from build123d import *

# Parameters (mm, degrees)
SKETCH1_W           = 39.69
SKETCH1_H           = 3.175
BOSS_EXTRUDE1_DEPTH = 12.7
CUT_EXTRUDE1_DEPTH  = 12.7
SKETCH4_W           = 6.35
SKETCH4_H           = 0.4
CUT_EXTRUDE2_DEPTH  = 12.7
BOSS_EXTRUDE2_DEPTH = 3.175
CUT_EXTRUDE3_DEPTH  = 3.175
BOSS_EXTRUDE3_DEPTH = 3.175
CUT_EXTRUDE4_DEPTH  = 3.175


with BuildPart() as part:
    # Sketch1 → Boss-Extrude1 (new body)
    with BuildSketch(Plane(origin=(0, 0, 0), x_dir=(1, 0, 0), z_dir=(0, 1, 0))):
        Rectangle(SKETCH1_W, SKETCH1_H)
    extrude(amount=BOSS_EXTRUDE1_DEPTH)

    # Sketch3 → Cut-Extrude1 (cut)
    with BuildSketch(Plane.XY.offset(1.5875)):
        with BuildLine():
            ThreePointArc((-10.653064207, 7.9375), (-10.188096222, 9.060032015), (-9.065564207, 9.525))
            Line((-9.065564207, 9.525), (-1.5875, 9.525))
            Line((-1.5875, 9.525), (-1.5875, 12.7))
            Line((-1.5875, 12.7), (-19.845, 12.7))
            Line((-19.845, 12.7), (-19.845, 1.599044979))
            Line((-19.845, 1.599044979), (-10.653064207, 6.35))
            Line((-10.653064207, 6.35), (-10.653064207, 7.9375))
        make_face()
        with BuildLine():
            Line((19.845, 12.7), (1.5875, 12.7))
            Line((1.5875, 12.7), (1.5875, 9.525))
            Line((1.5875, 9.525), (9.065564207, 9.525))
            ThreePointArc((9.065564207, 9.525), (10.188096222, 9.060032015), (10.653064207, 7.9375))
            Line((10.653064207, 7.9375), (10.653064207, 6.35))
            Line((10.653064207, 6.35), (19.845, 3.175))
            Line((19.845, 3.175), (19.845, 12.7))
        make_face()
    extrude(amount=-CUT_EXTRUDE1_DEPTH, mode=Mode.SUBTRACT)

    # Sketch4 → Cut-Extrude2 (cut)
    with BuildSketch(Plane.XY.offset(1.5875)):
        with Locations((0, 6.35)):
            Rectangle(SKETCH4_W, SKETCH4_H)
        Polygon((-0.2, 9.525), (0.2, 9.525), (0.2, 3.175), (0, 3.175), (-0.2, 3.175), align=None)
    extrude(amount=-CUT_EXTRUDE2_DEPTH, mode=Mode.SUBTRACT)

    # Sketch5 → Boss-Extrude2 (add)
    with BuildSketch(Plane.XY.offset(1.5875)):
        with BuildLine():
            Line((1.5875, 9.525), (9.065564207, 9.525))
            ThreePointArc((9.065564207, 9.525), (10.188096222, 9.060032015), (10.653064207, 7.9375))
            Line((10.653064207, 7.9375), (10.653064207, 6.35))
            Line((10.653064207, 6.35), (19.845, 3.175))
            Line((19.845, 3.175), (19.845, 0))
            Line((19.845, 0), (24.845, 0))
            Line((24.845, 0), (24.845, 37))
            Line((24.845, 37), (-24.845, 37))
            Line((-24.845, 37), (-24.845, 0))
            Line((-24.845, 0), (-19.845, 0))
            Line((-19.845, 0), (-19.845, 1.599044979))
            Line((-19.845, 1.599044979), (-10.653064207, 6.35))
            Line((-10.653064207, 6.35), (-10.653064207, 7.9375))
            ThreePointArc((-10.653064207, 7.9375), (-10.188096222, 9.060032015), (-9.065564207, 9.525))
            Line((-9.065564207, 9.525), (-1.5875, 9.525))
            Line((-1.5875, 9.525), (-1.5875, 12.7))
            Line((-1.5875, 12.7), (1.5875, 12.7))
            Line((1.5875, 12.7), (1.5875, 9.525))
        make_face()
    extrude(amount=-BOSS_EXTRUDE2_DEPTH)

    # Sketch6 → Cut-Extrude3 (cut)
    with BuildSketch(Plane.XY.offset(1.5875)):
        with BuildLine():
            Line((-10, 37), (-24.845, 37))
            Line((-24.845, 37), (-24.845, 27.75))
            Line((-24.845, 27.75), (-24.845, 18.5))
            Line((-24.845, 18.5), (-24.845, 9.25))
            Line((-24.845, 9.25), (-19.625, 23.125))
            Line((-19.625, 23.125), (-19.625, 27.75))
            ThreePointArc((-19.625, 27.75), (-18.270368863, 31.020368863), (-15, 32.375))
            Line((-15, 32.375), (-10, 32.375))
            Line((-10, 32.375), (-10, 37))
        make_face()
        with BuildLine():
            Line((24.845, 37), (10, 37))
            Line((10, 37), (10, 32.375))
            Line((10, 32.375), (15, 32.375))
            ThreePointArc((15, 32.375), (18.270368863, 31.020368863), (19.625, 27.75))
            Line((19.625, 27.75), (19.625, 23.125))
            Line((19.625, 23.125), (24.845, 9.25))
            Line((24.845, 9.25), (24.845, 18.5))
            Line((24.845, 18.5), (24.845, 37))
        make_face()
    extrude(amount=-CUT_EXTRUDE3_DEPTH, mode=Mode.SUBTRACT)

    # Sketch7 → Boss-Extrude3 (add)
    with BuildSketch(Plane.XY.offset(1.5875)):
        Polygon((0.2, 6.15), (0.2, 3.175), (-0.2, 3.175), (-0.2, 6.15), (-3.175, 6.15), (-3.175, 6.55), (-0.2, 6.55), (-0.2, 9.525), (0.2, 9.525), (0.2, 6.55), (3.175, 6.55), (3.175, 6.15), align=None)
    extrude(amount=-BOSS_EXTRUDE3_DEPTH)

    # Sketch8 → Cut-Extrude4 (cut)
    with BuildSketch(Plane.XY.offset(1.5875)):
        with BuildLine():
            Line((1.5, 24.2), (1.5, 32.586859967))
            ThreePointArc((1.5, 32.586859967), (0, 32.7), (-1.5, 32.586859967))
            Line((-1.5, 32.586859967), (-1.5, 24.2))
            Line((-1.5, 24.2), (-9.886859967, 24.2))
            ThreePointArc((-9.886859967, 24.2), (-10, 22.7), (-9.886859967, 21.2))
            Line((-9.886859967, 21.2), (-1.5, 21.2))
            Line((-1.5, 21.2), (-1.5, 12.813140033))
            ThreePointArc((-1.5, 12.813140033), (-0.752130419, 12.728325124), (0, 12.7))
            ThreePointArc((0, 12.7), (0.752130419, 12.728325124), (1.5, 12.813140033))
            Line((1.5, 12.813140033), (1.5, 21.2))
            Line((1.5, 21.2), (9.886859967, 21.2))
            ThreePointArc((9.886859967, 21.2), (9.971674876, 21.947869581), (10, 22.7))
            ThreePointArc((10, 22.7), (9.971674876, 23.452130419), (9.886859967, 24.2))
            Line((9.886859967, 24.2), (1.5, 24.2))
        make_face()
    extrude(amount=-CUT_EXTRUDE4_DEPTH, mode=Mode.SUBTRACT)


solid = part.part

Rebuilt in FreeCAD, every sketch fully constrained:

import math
import FreeCAD as App
import Part
import Sketcher
from FreeCAD import Vector


def add_polygon(sketch, points):
    """Adds a closed chain of lines whose ends are joined by coincident constraints."""
    first, n = sketch.GeometryCount, len(points)
    for a, b in zip(points, points[1:] + points[:1]):
        sketch.addGeometry(Part.LineSegment(App.Vector(*a, 0), App.Vector(*b, 0)), False)
    for i in range(n):
        sketch.addConstraint(Sketcher.Constraint("Coincident", first + i, 2, first + (i + 1) % n, 1))

doc = App.newDocument("Part")
body = doc.addObject("PartDesign::Body", "Body")

# Sketch on XZ plane
sketch1 = body.newObject("Sketcher::SketchObject", "Sketch")
sketch1.AttachmentSupport = (doc.getObject("XZ_Plane"), [""])
sketch1.MapMode = "FlatFace"
add_polygon(sketch1, [(-19.8, -1.6), (-19.8, 1.6), (19.8, 1.6), (19.8, -1.6)])  # lines 0-3
sketch1.addConstraint([
    Sketcher.Constraint("Vertical", 0),
    Sketcher.Constraint("Horizontal", 1),
    Sketcher.Constraint("Vertical", 2),
    Sketcher.Constraint("Horizontal", 3),
    Sketcher.Constraint("Symmetric", 0, 2, 2, 2, -1, 1),
    Sketcher.Constraint("DistanceX", 1, 1, 1, 2, 39.69),
    Sketcher.Constraint("DistanceY", 0, 1, 0, 2, 3.175),
])
pad1 = body.newObject("PartDesign::Pad", "Pad")
pad1.Profile = sketch1
pad1.Length = 12.7
pad1.Reversed = True

# Sketch on XY plane
sketch2 = body.newObject("Sketcher::SketchObject", "Sketch001")
sketch2.AttachmentSupport = (doc.getObject("XY_Plane"), [""])
sketch2.MapMode = "FlatFace"
sketch2.AttachmentOffset = App.Placement(Vector(0, 0, 1.5875), App.Rotation())
sketch2.addGeometry([
    Part.ArcOfCircle(Part.Circle(Vector(-9.1, 7.9, 0), Vector(0, 0, 1), 1.6), math.radians(90), math.radians(180)),  # 0
    Part.LineSegment(Vector(-9.1, 9.5, 0), Vector(-1.6, 9.5, 0)),  # 1
    Part.LineSegment(Vector(-1.6, 9.5, 0), Vector(-1.6, 12.7, 0)),  # 2
    Part.LineSegment(Vector(-1.6, 12.7, 0), Vector(-19.8, 12.7, 0)),  # 3
    Part.LineSegment(Vector(-19.8, 12.7, 0), Vector(-19.8, 1.6, 0)),  # 4
    Part.LineSegment(Vector(-19.8, 1.6, 0), Vector(-10.7, 6.3, 0)),  # 5
    Part.LineSegment(Vector(-10.7, 6.3, 0), Vector(-10.7, 7.9, 0)),  # 6
    Part.LineSegment(Vector(19.8, 12.7, 0), Vector(1.6, 12.7, 0)),  # 7
    Part.LineSegment(Vector(1.6, 12.7, 0), Vector(1.6, 9.5, 0)),  # 8
    Part.LineSegment(Vector(1.6, 9.5, 0), Vector(9.1, 9.5, 0)),  # 9
    Part.ArcOfCircle(Part.Circle(Vector(9.1, 7.9, 0), Vector(0, 0, 1), 1.6), math.radians(0), math.radians(90)),  # 10
    Part.LineSegment(Vector(10.7, 7.9, 0), Vector(10.7, 6.3, 0)),  # 11
    Part.LineSegment(Vector(10.7, 6.3, 0), Vector(19.8, 3.2, 0)),  # 12
    Part.LineSegment(Vector(19.8, 3.2, 0), Vector(19.8, 12.7, 0)),  # 13
], False)
sketch2.addConstraint([
    Sketcher.Constraint("Tangent", 0, 1, 1, 1),
    Sketcher.Constraint("Coincident", 1, 2, 2, 1),
    Sketcher.Constraint("Coincident", 2, 2, 3, 1),
    Sketcher.Constraint("Coincident", 3, 2, 4, 1),
    Sketcher.Constraint("Coincident", 4, 2, 5, 1),
    Sketcher.Constraint("Coincident", 5, 2, 6, 1),
    Sketcher.Constraint("Tangent", 6, 2, 0, 2),
    Sketcher.Constraint("Coincident", 7, 2, 8, 1),
    Sketcher.Constraint("Coincident", 8, 2, 9, 1),
    Sketcher.Constraint("Tangent", 9, 2, 10, 2),
    Sketcher.Constraint("Tangent", 10, 1, 11, 1),
    Sketcher.Constraint("Coincident", 11, 2, 12, 1),
    Sketcher.Constraint("Coincident", 12, 2, 13, 1),
    Sketcher.Constraint("Coincident", 13, 2, 7, 1),
    Sketcher.Constraint("Horizontal", 1),
    Sketcher.Constraint("Vertical", 2),
    Sketcher.Constraint("Horizontal", 3),
    Sketcher.Constraint("Vertical", 4),
    Sketcher.Constraint("Vertical", 6),
    Sketcher.Constraint("Horizontal", 7),
    Sketcher.Constraint("Vertical", 8),
    Sketcher.Constraint("Horizontal", 9),
    Sketcher.Constraint("Vertical", 11),
    Sketcher.Constraint("Vertical", 13),
    Sketcher.Constraint("Equal", 0, 10),
    Sketcher.Constraint("Symmetric", 0, 3, 10, 3, -2),
    Sketcher.Constraint("Symmetric", 2, 2, 7, 2, -2),
    Sketcher.Constraint("Horizontal", 5, 2, 11, 2),
    Sketcher.Constraint("Equal", 3, 7),
    Sketcher.Constraint("DistanceY", -1, 1, 2, 2, 12.7),
    Sketcher.Constraint("Radius", 0, 1.5875),
    Sketcher.Constraint("DistanceY", 2, 1, 2, 2, 3.175),
    Sketcher.Constraint("DistanceY", 13, 1, 13, 2, 9.525),
    Sketcher.Constraint("DistanceY", -1, 1, 5, 2, 6.35),
    Sketcher.Constraint("DistanceX", 3, 2, 3, 1, 18.2575),
    Sketcher.Constraint("DistanceX", 3, 2, -1, 1, 19.845),
    Sketcher.Constraint("Distance", 12, 9.724829),
    Sketcher.Constraint("DistanceY", 4, 2, 4, 1, 11.100955),
])
pocket1 = body.newObject("PartDesign::Pocket", "Pocket")
pocket1.Profile = sketch2
pocket1.Length = 12.7

# Sketch on XY plane
sketch3 = body.newObject("Sketcher::SketchObject", "Sketch002")
sketch3.AttachmentSupport = (doc.getObject("XY_Plane"), [""])
sketch3.MapMode = "FlatFace"
sketch3.AttachmentOffset = App.Placement(Vector(0, 0, 1.5875), App.Rotation())
add_polygon(sketch3, [(-3.17, 6.55), (-3.17, 6.15), (-0.2, 6.15), (-0.2, 3.17), (0.2, 3.17), (0.2, 6.15), (3.17, 6.15), (3.17, 6.55), (0.2, 6.55), (0.2, 9.53), (-0.2, 9.53), (-0.2, 6.55)])  # lines 0-11
sketch3.addConstraint([
    Sketcher.Constraint("Vertical", 0),
    Sketcher.Constraint("Horizontal", 1),
    Sketcher.Constraint("Vertical", 2),
    Sketcher.Constraint("Horizontal", 3),
    Sketcher.Constraint("Vertical", 4),
    Sketcher.Constraint("Horizontal", 5),
    Sketcher.Constraint("Vertical", 6),
    Sketcher.Constraint("Horizontal", 7),
    Sketcher.Constraint("Vertical", 8),
    Sketcher.Constraint("Horizontal", 9),
    Sketcher.Constraint("Vertical", 10),
    Sketcher.Constraint("Horizontal", 11),
    Sketcher.Constraint("Symmetric", 1, 2, 4, 2, -2),
    Sketcher.Constraint("Symmetric", 7, 2, 10, 2, -2),
    Sketcher.Constraint("Vertical", 4, 2, 7, 2),
    Sketcher.Constraint("Equal", 1, 5),
    Sketcher.Constraint("Equal", 9, 0),
    Sketcher.Constraint("Equal", 11, 2),
    Sketcher.Constraint("Equal", 4, 8),
    Sketcher.Constraint("DistanceX", 3, 1, 3, 2, 0.4),
    Sketcher.Constraint("DistanceX", 1, 1, 1, 2, 2.975),
    Sketcher.Constraint("DistanceY", -1, 1, 0, 2, 6.15),
])
pocket2 = body.newObject("PartDesign::Pocket", "Pocket001")
pocket2.Profile = sketch3
pocket2.Length = 12.7

# Sketch on XY plane
sketch4 = body.newObject("Sketcher::SketchObject", "Sketch003")
sketch4.AttachmentSupport = (doc.getObject("XY_Plane"), [""])
sketch4.MapMode = "FlatFace"
sketch4.AttachmentOffset = App.Placement(Vector(0, 0, 1.5875), App.Rotation())
sketch4.addGeometry([
    Part.LineSegment(Vector(1.6, 9.5, 0), Vector(9.1, 9.5, 0)),  # 0
    Part.ArcOfCircle(Part.Circle(Vector(9.1, 7.9, 0), Vector(0, 0, 1), 1.6), math.radians(0), math.radians(90)),  # 1
    Part.LineSegment(Vector(10.7, 7.9, 0), Vector(10.7, 6.3, 0)),  # 2
    Part.LineSegment(Vector(10.7, 6.3, 0), Vector(19.8, 3.2, 0)),  # 3
    Part.LineSegment(Vector(19.8, 3.2, 0), Vector(19.8, 0, 0)),  # 4
    Part.LineSegment(Vector(19.8, 0, 0), Vector(24.8, 0, 0)),  # 5
    Part.LineSegment(Vector(24.8, 0, 0), Vector(24.8, 37, 0)),  # 6
    Part.LineSegment(Vector(24.8, 37, 0), Vector(-24.8, 37, 0)),  # 7
    Part.LineSegment(Vector(-24.8, 37, 0), Vector(-24.8, 0, 0)),  # 8
    Part.LineSegment(Vector(-24.8, 0, 0), Vector(-19.8, 0, 0)),  # 9
    Part.LineSegment(Vector(-19.8, 0, 0), Vector(-19.8, 1.6, 0)),  # 10
    Part.LineSegment(Vector(-19.8, 1.6, 0), Vector(-10.7, 6.3, 0)),  # 11
    Part.LineSegment(Vector(-10.7, 6.3, 0), Vector(-10.7, 7.9, 0)),  # 12
    Part.ArcOfCircle(Part.Circle(Vector(-9.1, 7.9, 0), Vector(0, 0, 1), 1.6), math.radians(90), math.radians(180)),  # 13
    Part.LineSegment(Vector(-9.1, 9.5, 0), Vector(-1.6, 9.5, 0)),  # 14
    Part.LineSegment(Vector(-1.6, 9.5, 0), Vector(-1.6, 12.7, 0)),  # 15
    Part.LineSegment(Vector(-1.6, 12.7, 0), Vector(1.6, 12.7, 0)),  # 16
    Part.LineSegment(Vector(1.6, 12.7, 0), Vector(1.6, 9.5, 0)),  # 17
], False)
sketch4.addConstraint([
    Sketcher.Constraint("Tangent", 0, 2, 1, 2),
    Sketcher.Constraint("Tangent", 1, 1, 2, 1),
    Sketcher.Constraint("Coincident", 2, 2, 3, 1),
    Sketcher.Constraint("Coincident", 3, 2, 4, 1),
    Sketcher.Constraint("Coincident", 4, 2, 5, 1),
    Sketcher.Constraint("Coincident", 5, 2, 6, 1),
    Sketcher.Constraint("Coincident", 6, 2, 7, 1),
    Sketcher.Constraint("Coincident", 7, 2, 8, 1),
    Sketcher.Constraint("Coincident", 8, 2, 9, 1),
    Sketcher.Constraint("Coincident", 9, 2, 10, 1),
    Sketcher.Constraint("Coincident", 10, 2, 11, 1),
    Sketcher.Constraint("Coincident", 11, 2, 12, 1),
    Sketcher.Constraint("Tangent", 12, 2, 13, 2),
    Sketcher.Constraint("Tangent", 13, 1, 14, 1),
    Sketcher.Constraint("Coincident", 14, 2, 15, 1),
    Sketcher.Constraint("Coincident", 15, 2, 16, 1),
    Sketcher.Constraint("Coincident", 16, 2, 17, 1),
    Sketcher.Constraint("Coincident", 17, 2, 0, 1),
    Sketcher.Constraint("Horizontal", 0),
    Sketcher.Constraint("Vertical", 2),
    Sketcher.Constraint("Vertical", 4),
    Sketcher.Constraint("Horizontal", 5),
    Sketcher.Constraint("Vertical", 6),
    Sketcher.Constraint("Horizontal", 7),
    Sketcher.Constraint("Vertical", 8),
    Sketcher.Constraint("Horizontal", 9),
    Sketcher.Constraint("Vertical", 10),
    Sketcher.Constraint("Vertical", 12),
    Sketcher.Constraint("Horizontal", 14),
    Sketcher.Constraint("Vertical", 15),
    Sketcher.Constraint("Horizontal", 16),
    Sketcher.Constraint("Vertical", 17),
    Sketcher.Constraint("Equal", 1, 13),
    Sketcher.Constraint("Symmetric", 5, 2, 8, 2, -1, 1),
    Sketcher.Constraint("Symmetric", 1, 3, 13, 3, -2),
    Sketcher.Constraint("Symmetric", 4, 2, 9, 2, -2),
    Sketcher.Constraint("Horizontal", 2, 2, 11, 2),
    Sketcher.Constraint("Equal", 0, 14),
    Sketcher.Constraint("Equal", 16, 4),
    Sketcher.Constraint("Equal", 4, 15),
    Sketcher.Constraint("DistanceX", 5, 1, 5, 2, 5.0),
    Sketcher.Constraint("DistanceY", 6, 1, 6, 2, 37.0),
    Sketcher.Constraint("DistanceX", 7, 2, 7, 1, 49.69),
    Sketcher.Constraint("DistanceY", -1, 1, 15, 2, 12.7),
    Sketcher.Constraint("Radius", 1, 1.5875),
    Sketcher.Constraint("DistanceX", 16, 1, 16, 2, 3.175),
    Sketcher.Constraint("DistanceY", -1, 1, 2, 2, 6.35),
    Sketcher.Constraint("Distance", 3, 9.724829),
    Sketcher.Constraint("DistanceY", 10, 1, 10, 2, 1.599045),
])
pad2 = body.newObject("PartDesign::Pad", "Pad001")
pad2.Profile = sketch4
pad2.Length = 3.175
pad2.Reversed = True

# Sketch on XY plane
sketch5 = body.newObject("Sketcher::SketchObject", "Sketch004")
sketch5.AttachmentSupport = (doc.getObject("XY_Plane"), [""])
sketch5.MapMode = "FlatFace"
sketch5.AttachmentOffset = App.Placement(Vector(0, 0, 1.5875), App.Rotation())
sketch5.addGeometry([
    Part.LineSegment(Vector(-10, 37, 0), Vector(-24.8, 37, 0)),  # 0
    Part.LineSegment(Vector(-24.8, 37, 0), Vector(-24.8, 9.2, 0)),  # 1
    Part.LineSegment(Vector(-24.8, 9.2, 0), Vector(-19.6, 23.1, 0)),  # 2
    Part.LineSegment(Vector(-19.6, 23.1, 0), Vector(-19.6, 27.8, 0)),  # 3
    Part.ArcOfCircle(Part.Circle(Vector(-15, 27.8, 0), Vector(0, 0, 1), 4.6), math.radians(90), math.radians(180)),  # 4
    Part.LineSegment(Vector(-15, 32.4, 0), Vector(-10, 32.4, 0)),  # 5
    Part.LineSegment(Vector(-10, 32.4, 0), Vector(-10, 37, 0)),  # 6
    Part.LineSegment(Vector(24.8, 37, 0), Vector(10, 37, 0)),  # 7
    Part.LineSegment(Vector(10, 37, 0), Vector(10, 32.4, 0)),  # 8
    Part.LineSegment(Vector(10, 32.4, 0), Vector(15, 32.4, 0)),  # 9
    Part.ArcOfCircle(Part.Circle(Vector(15, 27.8, 0), Vector(0, 0, 1), 4.6), math.radians(0), math.radians(90)),  # 10
    Part.LineSegment(Vector(19.6, 27.8, 0), Vector(19.6, 23.1, 0)),  # 11
    Part.LineSegment(Vector(19.6, 23.1, 0), Vector(24.8, 9.2, 0)),  # 12
    Part.LineSegment(Vector(24.8, 9.2, 0), Vector(24.8, 37, 0)),  # 13
], False)
sketch5.addConstraint([
    Sketcher.Constraint("Coincident", 0, 2, 1, 1),
    Sketcher.Constraint("Coincident", 1, 2, 2, 1),
    Sketcher.Constraint("Coincident", 2, 2, 3, 1),
    Sketcher.Constraint("Tangent", 3, 2, 4, 2),
    Sketcher.Constraint("Tangent", 4, 1, 5, 1),
    Sketcher.Constraint("Coincident", 5, 2, 6, 1),
    Sketcher.Constraint("Coincident", 6, 2, 0, 1),
    Sketcher.Constraint("Coincident", 7, 2, 8, 1),
    Sketcher.Constraint("Coincident", 8, 2, 9, 1),
    Sketcher.Constraint("Tangent", 9, 2, 10, 2),
    Sketcher.Constraint("Tangent", 10, 1, 11, 1),
    Sketcher.Constraint("Coincident", 11, 2, 12, 1),
    Sketcher.Constraint("Coincident", 12, 2, 13, 1),
    Sketcher.Constraint("Coincident", 13, 2, 7, 1),
    Sketcher.Constraint("Horizontal", 0),
    Sketcher.Constraint("Vertical", 1),
    Sketcher.Constraint("Vertical", 3),
    Sketcher.Constraint("Horizontal", 5),
    Sketcher.Constraint("Vertical", 6),
    Sketcher.Constraint("Horizontal", 7),
    Sketcher.Constraint("Vertical", 8),
    Sketcher.Constraint("Horizontal", 9),
    Sketcher.Constraint("Vertical", 11),
    Sketcher.Constraint("Vertical", 13),
    Sketcher.Constraint("Equal", 4, 10),
    Sketcher.Constraint("Symmetric", 4, 3, 10, 3, -2),
    Sketcher.Constraint("Symmetric", 6, 2, 7, 2, -2),
    Sketcher.Constraint("Symmetric", 1, 2, 12, 2, -2),
    Sketcher.Constraint("Horizontal", 2, 2, 11, 2),
    Sketcher.Constraint("Equal", 3, 6),
    Sketcher.Constraint("DistanceX", 5, 1, 5, 2, 5.0),
    Sketcher.Constraint("DistanceX", 4, 3, -1, 1, 15.0),
    Sketcher.Constraint("DistanceY", -1, 1, 0, 2, 37.0),
    Sketcher.Constraint("Radius", 4, 4.625),
    Sketcher.Constraint("DistanceY", 1, 2, 1, 1, 27.75),
    Sketcher.Constraint("DistanceY", 1, 2, 4, 3, 18.5),
    Sketcher.Constraint("DistanceX", 0, 2, 0, 1, 14.845),
])
pocket3 = body.newObject("PartDesign::Pocket", "Pocket002")
pocket3.Profile = sketch5
pocket3.Length = 3.175

# Sketch on XY plane
sketch6 = body.newObject("Sketcher::SketchObject", "Sketch005")
sketch6.AttachmentSupport = (doc.getObject("XY_Plane"), [""])
sketch6.MapMode = "FlatFace"
sketch6.AttachmentOffset = App.Placement(Vector(0, 0, 1.5875), App.Rotation())
add_polygon(sketch6, [(0.2, 3.17), (0.2, 6.15), (3.17, 6.15), (3.17, 6.55), (0.2, 6.55), (0.2, 9.53), (-0.2, 9.53), (-0.2, 6.55), (-3.17, 6.55), (-3.17, 6.15), (-0.2, 6.15), (-0.2, 3.17)])  # lines 0-11
sketch6.addConstraint([
    Sketcher.Constraint("Vertical", 0),
    Sketcher.Constraint("Horizontal", 1),
    Sketcher.Constraint("Vertical", 2),
    Sketcher.Constraint("Horizontal", 3),
    Sketcher.Constraint("Vertical", 4),
    Sketcher.Constraint("Horizontal", 5),
    Sketcher.Constraint("Vertical", 6),
    Sketcher.Constraint("Horizontal", 7),
    Sketcher.Constraint("Vertical", 8),
    Sketcher.Constraint("Horizontal", 9),
    Sketcher.Constraint("Vertical", 10),
    Sketcher.Constraint("Horizontal", 11),
    Sketcher.Constraint("Symmetric", 3, 2, 6, 2, -2),
    Sketcher.Constraint("Symmetric", 1, 2, 8, 2, -2),
    Sketcher.Constraint("Vertical", 0, 2, 3, 2),
    Sketcher.Constraint("Vertical", 6, 2, 9, 2),
    Sketcher.Constraint("Equal", 9, 0),
    Sketcher.Constraint("Equal", 11, 2),
    Sketcher.Constraint("Equal", 0, 4),
    Sketcher.Constraint("DistanceX", 5, 2, 5, 1, 0.4),
    Sketcher.Constraint("DistanceX", 1, 1, 1, 2, 2.975),
    Sketcher.Constraint("DistanceY", -1, 1, 0, 2, 6.15),
])
pad3 = body.newObject("PartDesign::Pad", "Pad002")
pad3.Profile = sketch6
pad3.Length = 3.175
pad3.Reversed = True

# Sketch on XY plane
sketch7 = body.newObject("Sketcher::SketchObject", "Sketch006")
sketch7.AttachmentSupport = (doc.getObject("XY_Plane"), [""])
sketch7.MapMode = "FlatFace"
sketch7.AttachmentOffset = App.Placement(Vector(0, 0, 1.5875), App.Rotation())
sketch7.addGeometry([
    Part.LineSegment(Vector(1.5, 24.2, 0), Vector(1.5, 32.6, 0)),  # 0
    Part.ArcOfCircle(Part.Circle(Vector(0, 22.7, 0), Vector(0, 0, 1), 10), math.radians(81.37), math.radians(98.63)),  # 1
    Part.LineSegment(Vector(-1.5, 32.6, 0), Vector(-1.5, 24.2, 0)),  # 2
    Part.LineSegment(Vector(-1.5, 24.2, 0), Vector(-9.9, 24.2, 0)),  # 3
    Part.ArcOfCircle(Part.Circle(Vector(0, 22.7, 0), Vector(0, 0, 1), 10), math.radians(171.37), math.radians(188.63)),  # 4
    Part.LineSegment(Vector(-9.9, 21.2, 0), Vector(-1.5, 21.2, 0)),  # 5
    Part.LineSegment(Vector(-1.5, 21.2, 0), Vector(-1.5, 12.8, 0)),  # 6
    Part.ArcOfCircle(Part.Circle(Vector(0, 22.7, 0), Vector(0, 0, 1), 10), math.radians(-98.63), math.radians(-90)),  # 7
    Part.ArcOfCircle(Part.Circle(Vector(0, 22.7, 0), Vector(0, 0, 1), 10), math.radians(-90), math.radians(-81.37)),  # 8
    Part.LineSegment(Vector(1.5, 12.8, 0), Vector(1.5, 21.2, 0)),  # 9
    Part.LineSegment(Vector(1.5, 21.2, 0), Vector(9.9, 21.2, 0)),  # 10
    Part.ArcOfCircle(Part.Circle(Vector(0, 22.7, 0), Vector(0, 0, 1), 10), math.radians(-8.63), math.radians(0)),  # 11
    Part.ArcOfCircle(Part.Circle(Vector(0, 22.7, 0), Vector(0, 0, 1), 10), math.radians(0), math.radians(8.63)),  # 12
    Part.LineSegment(Vector(9.9, 24.2, 0), Vector(1.5, 24.2, 0)),  # 13
], False)
sketch7.addConstraint([
    Sketcher.Constraint("Coincident", 0, 2, 1, 1),
    Sketcher.Constraint("Coincident", 1, 2, 2, 1),
    Sketcher.Constraint("Coincident", 2, 2, 3, 1),
    Sketcher.Constraint("Coincident", 3, 2, 4, 1),
    Sketcher.Constraint("Coincident", 4, 2, 5, 1),
    Sketcher.Constraint("Coincident", 5, 2, 6, 1),
    Sketcher.Constraint("Coincident", 6, 2, 7, 1),
    Sketcher.Constraint("Tangent", 7, 2, 8, 1),
    Sketcher.Constraint("Coincident", 8, 2, 9, 1),
    Sketcher.Constraint("Coincident", 9, 2, 10, 1),
    Sketcher.Constraint("Coincident", 10, 2, 11, 1),
    Sketcher.Constraint("Tangent", 11, 2, 12, 1),
    Sketcher.Constraint("Coincident", 12, 2, 13, 1),
    Sketcher.Constraint("Coincident", 13, 2, 0, 1),
    Sketcher.Constraint("Vertical", 0),
    Sketcher.Constraint("Vertical", 2),
    Sketcher.Constraint("Horizontal", 3),
    Sketcher.Constraint("Horizontal", 5),
    Sketcher.Constraint("Vertical", 6),
    Sketcher.Constraint("Vertical", 9),
    Sketcher.Constraint("Horizontal", 10),
    Sketcher.Constraint("Horizontal", 13),
    Sketcher.Constraint("Coincident", 4, 3, 1, 3),
    Sketcher.Constraint("Coincident", 7, 3, 1, 3),
    Sketcher.Constraint("Coincident", 11, 3, 1, 3),
    Sketcher.Constraint("Equal", 1, 4),
    Sketcher.Constraint("Equal", 4, 7),
    Sketcher.Constraint("Equal", 7, 8),
    Sketcher.Constraint("Equal", 8, 11),
    Sketcher.Constraint("Equal", 11, 12),
    Sketcher.Constraint("Symmetric", 0, 2, 1, 2, -2),
    Sketcher.Constraint("Symmetric", 5, 2, 9, 2, -2),
    Sketcher.Constraint("PointOnObject", 7, 2, -2),
    Sketcher.Constraint("Horizontal", 12, 3, 11, 2),
    Sketcher.Constraint("Horizontal", 3, 2, 12, 2),
    Sketcher.Constraint("Vertical", 3, 2, 4, 2),
    Sketcher.Constraint("Vertical", 2, 2, 5, 2),
    Sketcher.Constraint("Equal", 13, 0),
    Sketcher.Constraint("Radius", 1, 10.0),
    Sketcher.Constraint("DistanceX", 1, 2, 0, 2, 3.0),
    Sketcher.Constraint("DistanceY", -1, 1, 1, 3, 22.7),
])
pocket4 = body.newObject("PartDesign::Pocket", "Pocket003")
pocket4.Profile = sketch7
pocket4.Length = 3.175

doc.recompute()
